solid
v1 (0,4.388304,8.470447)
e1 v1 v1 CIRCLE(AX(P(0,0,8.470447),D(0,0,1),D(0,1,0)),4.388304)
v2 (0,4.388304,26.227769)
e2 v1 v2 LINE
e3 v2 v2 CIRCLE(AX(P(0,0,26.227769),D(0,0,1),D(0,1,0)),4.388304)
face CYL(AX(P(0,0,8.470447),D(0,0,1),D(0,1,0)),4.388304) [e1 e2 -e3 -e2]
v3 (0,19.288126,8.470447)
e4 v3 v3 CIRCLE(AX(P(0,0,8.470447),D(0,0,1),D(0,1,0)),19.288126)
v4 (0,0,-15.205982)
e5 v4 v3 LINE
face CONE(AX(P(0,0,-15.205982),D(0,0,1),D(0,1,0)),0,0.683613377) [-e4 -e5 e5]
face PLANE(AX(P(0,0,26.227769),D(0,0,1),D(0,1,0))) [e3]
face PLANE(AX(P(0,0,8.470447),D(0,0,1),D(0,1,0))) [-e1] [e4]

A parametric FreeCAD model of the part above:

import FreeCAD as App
import Part
import Sketcher


def add_polygon(sketch, points):
    """Adds a closed chain of lines whose ends are joined by coincident constraints."""
    first, n = sketch.GeometryCount, len(points)
    for a, b in zip(points, points[1:] + points[:1]):
        sketch.addGeometry(Part.LineSegment(App.Vector(*a, 0), App.Vector(*b, 0)), False)
    for i in range(n):
        sketch.addConstraint(Sketcher.Constraint("Coincident", first + i, 2, first + (i + 1) % n, 1))

doc = App.newDocument("Part")
body = doc.addObject("PartDesign::Body", "Body")

# Sketch on YZ plane
sketch1 = body.newObject("Sketcher::SketchObject", "Sketch")
sketch1.AttachmentSupport = (doc.getObject("YZ_Plane"), [""])
sketch1.MapMode = "FlatFace"
add_polygon(sketch1, [(4.388304, 26.227769), (0, 26.227769), (0, -15.205982), (19.288126, 8.470447), (4.388304, 8.470447)])  # lines 0-4
sketch1.addConstraint([
    Sketcher.Constraint("Horizontal", 0),
    Sketcher.Constraint("Vertical", 1),
    Sketcher.Constraint("Horizontal", 3),
    Sketcher.Constraint("Vertical", 4),
    Sketcher.Constraint("PointOnObject", 0, 2, -2),
    Sketcher.Constraint("DistanceX", 3, 2, 3, 1, 14.899822),
    Sketcher.Constraint("DistanceY", 1, 2, 1, 1, 41.433751),
    Sketcher.Constraint("DistanceY", 4, 1, 4, 2, 17.757322),
    Sketcher.Constraint("DistanceX", 0, 2, 0, 1, 4.388304),
    Sketcher.Constraint("DistanceY", -1, 1, 0, 2, 26.227769),
])
revolution = body.newObject("PartDesign::Revolution", "Revolution")
revolution.Profile = sketch1
revolution.ReferenceAxis = (sketch1, ["V_Axis"])
revolution.Angle = 360

doc.recompute()
